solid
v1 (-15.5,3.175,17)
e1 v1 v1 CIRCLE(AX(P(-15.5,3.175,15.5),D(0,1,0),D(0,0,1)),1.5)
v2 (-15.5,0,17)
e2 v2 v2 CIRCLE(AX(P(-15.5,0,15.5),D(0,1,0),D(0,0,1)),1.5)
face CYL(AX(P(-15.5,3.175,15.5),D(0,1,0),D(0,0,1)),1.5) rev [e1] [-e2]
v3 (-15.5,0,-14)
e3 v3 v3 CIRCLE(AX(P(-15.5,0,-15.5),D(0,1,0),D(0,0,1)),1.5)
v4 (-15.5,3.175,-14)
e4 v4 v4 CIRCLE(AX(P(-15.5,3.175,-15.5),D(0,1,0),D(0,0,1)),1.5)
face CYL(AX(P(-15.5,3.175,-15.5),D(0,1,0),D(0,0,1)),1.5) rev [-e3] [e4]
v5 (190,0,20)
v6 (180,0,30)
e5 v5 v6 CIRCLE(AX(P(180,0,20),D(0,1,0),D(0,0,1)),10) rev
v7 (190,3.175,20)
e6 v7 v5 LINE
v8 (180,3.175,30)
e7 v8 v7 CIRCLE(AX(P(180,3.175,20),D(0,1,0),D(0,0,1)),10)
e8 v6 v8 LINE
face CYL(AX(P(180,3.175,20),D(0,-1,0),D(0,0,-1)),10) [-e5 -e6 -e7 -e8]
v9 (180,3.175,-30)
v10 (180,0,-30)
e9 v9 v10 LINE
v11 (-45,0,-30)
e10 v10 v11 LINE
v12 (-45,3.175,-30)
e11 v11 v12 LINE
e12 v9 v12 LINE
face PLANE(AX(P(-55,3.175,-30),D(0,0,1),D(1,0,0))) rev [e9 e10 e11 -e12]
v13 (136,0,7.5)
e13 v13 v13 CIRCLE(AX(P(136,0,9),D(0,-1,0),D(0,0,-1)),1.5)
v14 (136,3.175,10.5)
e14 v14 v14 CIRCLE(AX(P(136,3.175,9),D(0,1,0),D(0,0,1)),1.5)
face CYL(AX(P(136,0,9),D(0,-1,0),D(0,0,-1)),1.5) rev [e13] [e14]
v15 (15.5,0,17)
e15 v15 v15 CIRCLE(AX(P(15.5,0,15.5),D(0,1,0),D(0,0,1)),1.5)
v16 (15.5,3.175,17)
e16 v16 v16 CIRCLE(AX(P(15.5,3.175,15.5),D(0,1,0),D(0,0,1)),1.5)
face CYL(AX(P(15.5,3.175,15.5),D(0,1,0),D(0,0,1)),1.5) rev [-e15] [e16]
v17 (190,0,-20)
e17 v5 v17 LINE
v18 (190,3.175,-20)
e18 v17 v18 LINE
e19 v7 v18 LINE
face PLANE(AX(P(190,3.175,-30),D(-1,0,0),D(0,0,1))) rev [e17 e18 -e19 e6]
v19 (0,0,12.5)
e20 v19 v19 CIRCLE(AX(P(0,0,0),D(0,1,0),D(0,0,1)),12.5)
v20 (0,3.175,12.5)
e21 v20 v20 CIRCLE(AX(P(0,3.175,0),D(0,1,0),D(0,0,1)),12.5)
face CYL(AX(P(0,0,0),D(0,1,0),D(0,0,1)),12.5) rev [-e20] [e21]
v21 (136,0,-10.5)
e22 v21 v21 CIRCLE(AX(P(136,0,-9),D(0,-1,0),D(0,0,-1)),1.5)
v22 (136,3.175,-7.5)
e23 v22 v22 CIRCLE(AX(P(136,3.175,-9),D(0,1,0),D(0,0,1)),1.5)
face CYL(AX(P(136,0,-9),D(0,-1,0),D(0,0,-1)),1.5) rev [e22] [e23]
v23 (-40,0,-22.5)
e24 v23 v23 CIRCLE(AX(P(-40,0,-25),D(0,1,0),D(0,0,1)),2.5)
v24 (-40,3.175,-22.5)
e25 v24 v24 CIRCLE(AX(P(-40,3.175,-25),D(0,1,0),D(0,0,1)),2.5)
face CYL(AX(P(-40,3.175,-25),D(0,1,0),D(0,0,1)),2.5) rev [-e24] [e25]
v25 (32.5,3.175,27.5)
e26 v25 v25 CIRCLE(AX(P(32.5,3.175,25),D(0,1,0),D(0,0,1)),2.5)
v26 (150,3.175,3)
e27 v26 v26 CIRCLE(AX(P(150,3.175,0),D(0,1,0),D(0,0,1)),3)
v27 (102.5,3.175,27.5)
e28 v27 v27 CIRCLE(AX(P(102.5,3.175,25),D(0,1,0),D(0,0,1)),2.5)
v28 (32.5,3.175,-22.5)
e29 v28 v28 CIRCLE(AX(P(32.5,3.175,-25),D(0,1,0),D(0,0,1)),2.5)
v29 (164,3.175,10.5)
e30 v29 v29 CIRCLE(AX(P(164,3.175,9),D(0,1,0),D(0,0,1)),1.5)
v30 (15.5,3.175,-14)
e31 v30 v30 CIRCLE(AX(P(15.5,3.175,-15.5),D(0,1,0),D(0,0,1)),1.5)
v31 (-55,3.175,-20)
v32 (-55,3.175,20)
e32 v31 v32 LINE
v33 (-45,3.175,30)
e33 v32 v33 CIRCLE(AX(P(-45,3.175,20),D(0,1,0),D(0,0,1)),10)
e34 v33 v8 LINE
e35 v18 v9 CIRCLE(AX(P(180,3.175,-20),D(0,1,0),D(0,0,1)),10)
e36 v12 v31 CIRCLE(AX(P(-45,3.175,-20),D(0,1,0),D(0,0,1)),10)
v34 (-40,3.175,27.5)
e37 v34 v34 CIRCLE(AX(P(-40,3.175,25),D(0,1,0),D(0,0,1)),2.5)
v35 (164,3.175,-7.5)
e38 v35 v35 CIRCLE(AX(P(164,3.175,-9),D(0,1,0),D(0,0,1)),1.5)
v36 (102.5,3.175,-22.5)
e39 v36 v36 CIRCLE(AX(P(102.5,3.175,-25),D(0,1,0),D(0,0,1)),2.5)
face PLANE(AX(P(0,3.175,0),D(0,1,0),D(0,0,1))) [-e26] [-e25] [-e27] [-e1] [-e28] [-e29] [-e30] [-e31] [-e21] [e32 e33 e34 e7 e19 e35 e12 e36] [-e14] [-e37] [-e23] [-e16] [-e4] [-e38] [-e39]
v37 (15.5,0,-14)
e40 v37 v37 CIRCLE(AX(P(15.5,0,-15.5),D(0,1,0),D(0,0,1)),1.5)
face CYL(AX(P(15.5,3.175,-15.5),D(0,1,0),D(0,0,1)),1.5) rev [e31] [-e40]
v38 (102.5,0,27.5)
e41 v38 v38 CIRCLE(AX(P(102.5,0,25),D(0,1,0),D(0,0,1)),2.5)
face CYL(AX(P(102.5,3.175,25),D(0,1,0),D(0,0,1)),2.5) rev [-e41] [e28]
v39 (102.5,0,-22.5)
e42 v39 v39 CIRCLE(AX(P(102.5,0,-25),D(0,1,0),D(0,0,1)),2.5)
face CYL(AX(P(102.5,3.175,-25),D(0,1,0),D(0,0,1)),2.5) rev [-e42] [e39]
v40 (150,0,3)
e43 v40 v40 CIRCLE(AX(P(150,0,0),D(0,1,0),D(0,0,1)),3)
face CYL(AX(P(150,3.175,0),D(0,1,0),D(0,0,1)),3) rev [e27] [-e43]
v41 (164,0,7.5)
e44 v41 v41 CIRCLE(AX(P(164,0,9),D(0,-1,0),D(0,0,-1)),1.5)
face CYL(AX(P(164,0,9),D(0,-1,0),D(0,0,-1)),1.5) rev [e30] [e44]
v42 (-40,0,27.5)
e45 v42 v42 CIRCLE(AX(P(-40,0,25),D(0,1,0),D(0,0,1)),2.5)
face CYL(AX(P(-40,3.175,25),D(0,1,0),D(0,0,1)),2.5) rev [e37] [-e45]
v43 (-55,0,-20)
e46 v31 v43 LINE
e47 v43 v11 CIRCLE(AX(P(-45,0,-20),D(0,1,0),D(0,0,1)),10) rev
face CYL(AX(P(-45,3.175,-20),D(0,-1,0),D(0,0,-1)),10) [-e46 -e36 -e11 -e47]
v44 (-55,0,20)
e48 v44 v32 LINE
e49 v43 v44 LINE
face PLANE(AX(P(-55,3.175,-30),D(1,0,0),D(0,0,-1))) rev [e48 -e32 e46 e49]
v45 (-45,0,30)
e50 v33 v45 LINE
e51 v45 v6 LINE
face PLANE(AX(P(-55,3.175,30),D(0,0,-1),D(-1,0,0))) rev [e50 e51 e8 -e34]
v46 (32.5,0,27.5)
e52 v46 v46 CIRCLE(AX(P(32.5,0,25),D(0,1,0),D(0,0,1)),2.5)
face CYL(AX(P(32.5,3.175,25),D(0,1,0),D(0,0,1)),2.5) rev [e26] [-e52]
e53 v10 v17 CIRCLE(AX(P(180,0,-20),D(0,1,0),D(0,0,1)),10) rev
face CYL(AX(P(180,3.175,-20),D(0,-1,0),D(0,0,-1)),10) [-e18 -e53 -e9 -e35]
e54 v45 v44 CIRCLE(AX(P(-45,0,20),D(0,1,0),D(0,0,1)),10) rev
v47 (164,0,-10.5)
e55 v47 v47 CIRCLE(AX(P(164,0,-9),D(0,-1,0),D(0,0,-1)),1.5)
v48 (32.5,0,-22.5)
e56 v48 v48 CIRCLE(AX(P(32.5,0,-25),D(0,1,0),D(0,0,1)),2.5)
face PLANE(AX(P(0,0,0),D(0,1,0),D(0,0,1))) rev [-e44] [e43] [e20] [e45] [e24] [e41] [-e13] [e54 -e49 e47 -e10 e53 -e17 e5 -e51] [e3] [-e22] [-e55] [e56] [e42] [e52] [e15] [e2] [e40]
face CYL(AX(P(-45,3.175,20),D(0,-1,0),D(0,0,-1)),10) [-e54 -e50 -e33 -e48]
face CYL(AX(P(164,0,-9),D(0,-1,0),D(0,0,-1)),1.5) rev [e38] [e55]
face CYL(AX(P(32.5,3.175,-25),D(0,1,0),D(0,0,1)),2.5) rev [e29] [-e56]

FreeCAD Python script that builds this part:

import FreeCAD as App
import Part
import Sketcher


def edges_at(feature, points):
    """Names of the edges that pass closest to the given points."""
    edges = feature.Shape.Edges
    near = lambda p: min(range(len(edges)), key=lambda i: edges[i].distToShape(Part.Vertex(*p))[0])
    return sorted({f"Edge{near(p) + 1}" for p in points})


def add_polygon(sketch, points):
    """Adds a closed chain of lines whose ends are joined by coincident constraints."""
    first, n = sketch.GeometryCount, len(points)
    for a, b in zip(points, points[1:] + points[:1]):
        sketch.addGeometry(Part.LineSegment(App.Vector(*a, 0), App.Vector(*b, 0)), False)
    for i in range(n):
        sketch.addConstraint(Sketcher.Constraint("Coincident", first + i, 2, first + (i + 1) % n, 1))

doc = App.newDocument("Part")
params = doc.addObject("Spreadsheet::Sheet", "Params")
for row, (alias, value) in enumerate([
    ("sketch1_width", "245 mm"),
    ("sketch1_height", "60 mm"),
    ("pad1_length", "3.175 mm"),
    ("fillet_radius", "10 mm"),
    ("sketch2_diameter", "3 mm"),
    ("hole_diameter", "3 mm"),
    ("sketch3_diameter", "25 mm"),
    ("sketch4_diameter", "6 mm"),
    ("hole2_diameter", "6 mm"),
    ("sketch5_diameter", "3 mm"),
    ("hole3_diameter", "3 mm"),
    ("sketch6_diameter", "5 mm"),
    ("hole4_diameter", "5 mm"),
], start=1):
    params.set(f"A{row}", alias)
    params.set(f"B{row}", "=" + value)
    params.setAlias(f"B{row}", alias)

body = doc.addObject("PartDesign::Body", "Body")

sketch1 = body.newObject("Sketcher::SketchObject", "Sketch")
sketch1.AttachmentSupport = (doc.getObject("XZ_Plane"), [""])
sketch1.MapMode = "FlatFace"
add_polygon(sketch1, [(-55, -30), (-55, 30), (190, 30), (190, -30)])
sketch1.addConstraint([
    Sketcher.Constraint("Vertical", 0),
    Sketcher.Constraint("Horizontal", 1),
    Sketcher.Constraint("Vertical", 2),
    Sketcher.Constraint("Horizontal", 3),
    Sketcher.Constraint("DistanceX", 1, 1, 1, 2, 245.0),
    Sketcher.Constraint("DistanceY", 0, 1, 0, 2, 60.0),
    Sketcher.Constraint("DistanceX", 0, 2, -1, 1, 55.0),
    Sketcher.Constraint("DistanceY", -1, 1, 0, 2, 30.0),
])
sketch1.setExpression("Constraints[8]", "Params.sketch1_width")
sketch1.setExpression("Constraints[9]", "Params.sketch1_height")
pad1 = body.newObject("PartDesign::Pad", "Pad")
pad1.Profile = sketch1
pad1.setExpression("Length", "Params.pad1_length")
pad1.Reversed = True
doc.recompute()

fillet = body.newObject("PartDesign::Fillet", "Fillet")
fillet.Base = (pad1, edges_at(pad1, [
    (-55, 1.587, -30),
    (190, 1.587, -30),
    (190, 1.587, 30),
    (-55, 1.587, 30),
]))
fillet.setExpression("Radius", "Params.fillet_radius")

sketch2 = body.newObject("Sketcher::SketchObject", "Sketch001")
sketch2.AttachmentSupport = (doc.getObject("XZ_Plane"), [""])
sketch2.MapMode = "FlatFace"
sketch2.AttachmentOffset = App.Placement(App.Vector(0, 0, -3.175), App.Rotation())
sketch2.addGeometry([
    Part.Circle(App.Vector(-15.5, -15.5, 0), App.Vector(0, 0, 1), 1.5),
    Part.Circle(App.Vector(15.5, -15.5, 0), App.Vector(0, 0, 1), 1.5),
    Part.Circle(App.Vector(15.5, 15.5, 0), App.Vector(0, 0, 1), 1.5),
    Part.Circle(App.Vector(-15.5, 15.5, 0), App.Vector(0, 0, 1), 1.5),
], False)
sketch2.addConstraint([
    Sketcher.Constraint("Equal", 0, 1),
    Sketcher.Constraint("Equal", 1, 2),
    Sketcher.Constraint("Equal", 2, 3),
    Sketcher.Constraint("Symmetric", 0, 3, 2, 3, -1, 1),
    Sketcher.Constraint("Symmetric", 1, 3, 3, 3, -1, 1),
    Sketcher.Constraint("Symmetric", 0, 3, 1, 3, -2),
    Sketcher.Constraint("Diameter", 0, 3.0),
    Sketcher.Constraint("DistanceX", 0, 3, 1, 3, 31.0),
    Sketcher.Constraint("DistanceY", 1, 3, 2, 3, 31.0),
])
sketch2.setExpression("Constraints[6]", "Params.sketch2_diameter")
doc.recompute()
hole = body.newObject("PartDesign::Hole", "Hole")
hole.Profile = sketch2
hole.ThreadType = "None"
hole.setExpression("Diameter", "Params.hole_diameter")
hole.DepthType = "ThroughAll"
hole.Reversed = True

sketch3 = body.newObject("Sketcher::SketchObject", "Sketch002")
sketch3.AttachmentSupport = (doc.getObject("XZ_Plane"), [""])
sketch3.MapMode = "FlatFace"
sketch3.AttachmentOffset = App.Placement(App.Vector(0, 0, -3.175), App.Rotation())
sketch3.addGeometry(Part.Circle(App.Vector(0, 0, 0), App.Vector(0, 0, 1), 12.5), False)
sketch3.addConstraint([
    Sketcher.Constraint("Coincident", 0, 3, -1, 1),
    Sketcher.Constraint("Diameter", 0, 25.0),
])
sketch3.setExpression("Constraints[1]", "Params.sketch3_diameter")
pocket1 = body.newObject("PartDesign::Pocket", "Pocket")
pocket1.Profile = sketch3
pocket1.Type = "ThroughAll"
pocket1.Reversed = True

sketch4 = body.newObject("Sketcher::SketchObject", "Sketch003")
sketch4.AttachmentSupport = (doc.getObject("XZ_Plane"), [""])
sketch4.MapMode = "FlatFace"
sketch4.AttachmentOffset = App.Placement(App.Vector(0, 0, -3.175), App.Rotation())
sketch4.addGeometry(Part.Circle(App.Vector(150, 0, 0), App.Vector(0, 0, 1), 3), False)
sketch4.addConstraint([
    Sketcher.Constraint("PointOnObject", 0, 3, -1),
    Sketcher.Constraint("Diameter", 0, 6.0),
    Sketcher.Constraint("DistanceX", -1, 1, 0, 3, 150.0),
])
sketch4.setExpression("Constraints[1]", "Params.sketch4_diameter")
doc.recompute()
hole2 = body.newObject("PartDesign::Hole", "Hole001")
hole2.Profile = sketch4
hole2.ThreadType = "None"
hole2.setExpression("Diameter", "Params.hole2_diameter")
hole2.DepthType = "ThroughAll"
hole2.Reversed = True

sketch5 = body.newObject("Sketcher::SketchObject", "Sketch004")
sketch5.AttachmentSupport = (doc.getObject("XZ_Plane"), [""])
sketch5.MapMode = "FlatFace"
sketch5.addGeometry([
    Part.Circle(App.Vector(164, -9, 0), App.Vector(0, 0, 1), 1.5),
    Part.Circle(App.Vector(136, -9, 0), App.Vector(0, 0, 1), 1.5),
    Part.Circle(App.Vector(136, 9, 0), App.Vector(0, 0, 1), 1.5),
    Part.Circle(App.Vector(164, 9, 0), App.Vector(0, 0, 1), 1.5),
], False)
sketch5.addConstraint([
    Sketcher.Constraint("Equal", 0, 1),
    Sketcher.Constraint("Equal", 1, 2),
    Sketcher.Constraint("Equal", 2, 3),
    Sketcher.Constraint("Symmetric", 1, 3, 2, 3, -1),
    Sketcher.Constraint("Symmetric", 0, 3, 3, 3, -1),
    Sketcher.Constraint("Horizontal", 0, 3, 1, 3),
    Sketcher.Constraint("Diameter", 0, 3.0),
    Sketcher.Constraint("DistanceX", -1, 1, 0, 3, 164.0),
    Sketcher.Constraint("DistanceY", 0, 3, -1, 1, 9.0),
    Sketcher.Constraint("DistanceX", -1, 1, 1, 3, 136.0),
])
sketch5.setExpression("Constraints[6]", "Params.sketch5_diameter")
doc.recompute()
hole3 = body.newObject("PartDesign::Hole", "Hole002")
hole3.Profile = sketch5
hole3.ThreadType = "None"
hole3.setExpression("Diameter", "Params.hole3_diameter")
hole3.DepthType = "ThroughAll"

sketch6 = body.newObject("Sketcher::SketchObject", "Sketch005")
sketch6.AttachmentSupport = (doc.getObject("XZ_Plane"), [""])
sketch6.MapMode = "FlatFace"
sketch6.AttachmentOffset = App.Placement(App.Vector(0, 0, -3.175), App.Rotation())
sketch6.addGeometry([
    Part.Circle(App.Vector(32.5, 25, 0), App.Vector(0, 0, 1), 2.5),
    Part.Circle(App.Vector(102.5, 25, 0), App.Vector(0, 0, 1), 2.5),
    Part.Circle(App.Vector(102.5, -25, 0), App.Vector(0, 0, 1), 2.5),
    Part.Circle(App.Vector(32.5, -25, 0), App.Vector(0, 0, 1), 2.5),
    Part.Circle(App.Vector(-40, 25, 0), App.Vector(0, 0, 1), 2.5),
    Part.Circle(App.Vector(-40, -25, 0), App.Vector(0, 0, 1), 2.5),
], False)
sketch6.addConstraint([
    Sketcher.Constraint("Equal", 0, 1),
    Sketcher.Constraint("Equal", 1, 2),
    Sketcher.Constraint("Equal", 2, 3),
    Sketcher.Constraint("Equal", 3, 4),
    Sketcher.Constraint("Equal", 4, 5),
    Sketcher.Constraint("Symmetric", 1, 3, 2, 3, -1),
    Sketcher.Constraint("Symmetric", 0, 3, 3, 3, -1),
    Sketcher.Constraint("Symmetric", 4, 3, 5, 3, -1),
    Sketcher.Constraint("Horizontal", 0, 3, 1, 3),
    Sketcher.Constraint("Horizontal", 1, 3, 4, 3),
    Sketcher.Constraint("Diameter", 0, 5.0),
    Sketcher.Constraint("DistanceY", -1, 1, 0, 3, 25.0),
    Sketcher.Constraint("DistanceX", 4, 3, -1, 1, 40.0),
    Sketcher.Constraint("DistanceX", 0, 3, 1, 3, 70.0),
    Sketcher.Constraint("DistanceX", -1, 1, 0, 3, 32.5),
])
sketch6.setExpression("Constraints[10]", "Params.sketch6_diameter")
doc.recompute()
hole4 = body.newObject("PartDesign::Hole", "Hole003")
hole4.Profile = sketch6
hole4.ThreadType = "None"
hole4.setExpression("Diameter", "Params.hole4_diameter")
hole4.DepthType = "ThroughAll"
hole4.Reversed = True

doc.recompute()
